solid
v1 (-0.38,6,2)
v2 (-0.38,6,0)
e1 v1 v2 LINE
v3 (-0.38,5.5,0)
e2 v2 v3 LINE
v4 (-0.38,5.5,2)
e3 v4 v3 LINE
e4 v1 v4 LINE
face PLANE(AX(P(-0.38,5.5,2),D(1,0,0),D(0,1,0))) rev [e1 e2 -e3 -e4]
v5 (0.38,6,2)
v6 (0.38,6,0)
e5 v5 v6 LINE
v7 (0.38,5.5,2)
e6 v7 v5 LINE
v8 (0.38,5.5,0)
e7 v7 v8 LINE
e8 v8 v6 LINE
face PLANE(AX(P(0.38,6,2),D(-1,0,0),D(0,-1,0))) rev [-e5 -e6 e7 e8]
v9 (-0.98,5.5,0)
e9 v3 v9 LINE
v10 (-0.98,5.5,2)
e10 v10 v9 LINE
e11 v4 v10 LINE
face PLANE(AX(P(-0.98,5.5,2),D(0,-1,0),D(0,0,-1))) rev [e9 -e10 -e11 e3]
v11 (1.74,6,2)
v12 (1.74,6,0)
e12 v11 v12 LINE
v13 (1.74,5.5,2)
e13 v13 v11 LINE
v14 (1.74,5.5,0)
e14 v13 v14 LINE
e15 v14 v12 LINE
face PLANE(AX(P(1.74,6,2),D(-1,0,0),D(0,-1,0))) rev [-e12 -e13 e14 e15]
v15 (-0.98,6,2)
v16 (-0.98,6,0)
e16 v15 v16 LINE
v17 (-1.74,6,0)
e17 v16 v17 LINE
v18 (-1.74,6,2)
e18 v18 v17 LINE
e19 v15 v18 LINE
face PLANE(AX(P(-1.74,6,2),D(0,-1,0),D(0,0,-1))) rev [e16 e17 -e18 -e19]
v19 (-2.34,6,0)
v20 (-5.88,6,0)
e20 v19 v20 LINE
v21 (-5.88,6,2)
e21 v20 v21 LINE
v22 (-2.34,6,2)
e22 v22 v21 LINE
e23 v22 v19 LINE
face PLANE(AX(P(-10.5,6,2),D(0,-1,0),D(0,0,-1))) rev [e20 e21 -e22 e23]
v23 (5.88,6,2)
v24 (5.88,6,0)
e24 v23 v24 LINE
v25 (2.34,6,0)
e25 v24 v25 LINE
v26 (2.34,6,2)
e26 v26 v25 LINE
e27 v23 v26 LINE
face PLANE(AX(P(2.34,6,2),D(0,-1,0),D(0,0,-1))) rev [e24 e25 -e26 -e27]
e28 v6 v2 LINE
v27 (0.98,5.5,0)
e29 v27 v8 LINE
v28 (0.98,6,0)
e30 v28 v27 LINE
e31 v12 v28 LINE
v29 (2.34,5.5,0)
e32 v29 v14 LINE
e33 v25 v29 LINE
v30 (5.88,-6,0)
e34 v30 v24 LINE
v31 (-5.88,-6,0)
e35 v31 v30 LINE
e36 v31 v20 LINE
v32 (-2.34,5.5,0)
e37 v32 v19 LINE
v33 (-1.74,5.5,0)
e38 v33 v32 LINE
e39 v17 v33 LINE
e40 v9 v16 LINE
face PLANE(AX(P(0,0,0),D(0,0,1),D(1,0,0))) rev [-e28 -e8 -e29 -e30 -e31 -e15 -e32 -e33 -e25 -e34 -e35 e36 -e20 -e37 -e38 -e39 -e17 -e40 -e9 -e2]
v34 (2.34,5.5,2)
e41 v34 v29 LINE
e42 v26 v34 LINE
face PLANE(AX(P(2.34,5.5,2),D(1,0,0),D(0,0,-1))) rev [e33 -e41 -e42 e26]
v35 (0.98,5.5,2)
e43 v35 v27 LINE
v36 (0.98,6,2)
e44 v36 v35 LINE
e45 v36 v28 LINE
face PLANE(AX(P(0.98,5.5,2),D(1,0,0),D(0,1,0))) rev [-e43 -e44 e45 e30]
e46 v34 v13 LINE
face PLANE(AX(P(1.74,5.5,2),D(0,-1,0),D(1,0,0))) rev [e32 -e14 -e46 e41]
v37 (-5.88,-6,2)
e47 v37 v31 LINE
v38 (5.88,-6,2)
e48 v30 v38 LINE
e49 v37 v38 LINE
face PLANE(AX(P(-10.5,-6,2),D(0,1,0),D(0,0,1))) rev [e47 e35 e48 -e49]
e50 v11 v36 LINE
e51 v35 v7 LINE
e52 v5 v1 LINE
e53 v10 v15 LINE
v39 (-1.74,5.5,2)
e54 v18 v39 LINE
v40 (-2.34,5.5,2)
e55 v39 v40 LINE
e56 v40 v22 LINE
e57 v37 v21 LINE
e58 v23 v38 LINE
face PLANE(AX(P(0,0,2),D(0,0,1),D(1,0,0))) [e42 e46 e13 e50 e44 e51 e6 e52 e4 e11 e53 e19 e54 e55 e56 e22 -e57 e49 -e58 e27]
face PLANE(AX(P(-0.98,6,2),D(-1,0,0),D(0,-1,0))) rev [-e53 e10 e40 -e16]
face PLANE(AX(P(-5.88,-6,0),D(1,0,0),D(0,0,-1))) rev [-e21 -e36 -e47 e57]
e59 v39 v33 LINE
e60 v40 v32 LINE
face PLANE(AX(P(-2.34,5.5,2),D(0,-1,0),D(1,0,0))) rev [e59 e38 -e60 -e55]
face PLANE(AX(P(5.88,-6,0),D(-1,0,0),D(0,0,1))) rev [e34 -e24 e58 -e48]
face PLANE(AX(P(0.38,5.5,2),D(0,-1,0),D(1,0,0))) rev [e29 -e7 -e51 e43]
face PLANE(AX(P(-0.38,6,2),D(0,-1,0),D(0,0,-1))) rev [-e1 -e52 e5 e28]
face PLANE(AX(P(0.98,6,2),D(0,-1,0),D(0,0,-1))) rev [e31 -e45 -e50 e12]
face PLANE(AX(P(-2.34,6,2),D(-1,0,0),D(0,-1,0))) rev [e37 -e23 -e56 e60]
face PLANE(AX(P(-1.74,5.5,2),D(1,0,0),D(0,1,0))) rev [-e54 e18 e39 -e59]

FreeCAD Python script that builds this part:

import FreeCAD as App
import Part
import Sketcher
from FreeCAD import Vector


def add_polygon(sketch, points):
    """Adds a closed chain of lines whose ends are joined by coincident constraints."""
    first, n = sketch.GeometryCount, len(points)
    for a, b in zip(points, points[1:] + points[:1]):
        sketch.addGeometry(Part.LineSegment(App.Vector(*a, 0), App.Vector(*b, 0)), False)
    for i in range(n):
        sketch.addConstraint(Sketcher.Constraint("Coincident", first + i, 2, first + (i + 1) % n, 1))

doc = App.newDocument("Part")
body = doc.addObject("PartDesign::Body", "Body")

sketch1 = doc.addObject("Sketcher::SketchObject", "Sketch")
body.addObject(sketch1)
sketch1.AttachmentSupport = (doc.XY_Plane, [""])
sketch1.MapMode = "FlatFace"
add_polygon(sketch1, [(-10.5, -6), (10.5, -6), (10.5, 6), (2.34, 6), (2.34, 5.5), (1.74, 5.5), (1.74, 6), (0.98, 6), (0.98, 5.5), (0.38, 5.5), (0.38, 6), (-0.38, 6), (-0.38, 5.5), (-0.98, 5.5), (-0.98, 6), (-1.74, 6), (-1.74, 5.5), (-2.34, 5.5), (-2.34, 6), (-10.5, 6)])
sketch1.addGeometry(Part.Circle(Vector(-8.5, -2.5, 0), Vector(0, 0, 1), 1.5), False)
sketch1.addGeometry(Part.Circle(Vector(8.5, -2.5, 0), Vector(0, 0, 1), 1.5), False)
sketch1.addConstraint([
    Sketcher.Constraint("Horizontal", 0),
    Sketcher.Constraint("Vertical", 1),
    Sketcher.Constraint("Horizontal", 2),
    Sketcher.Constraint("Vertical", 3),
    Sketcher.Constraint("Horizontal", 4),
    Sketcher.Constraint("Vertical", 5),
    Sketcher.Constraint("Horizontal", 6),
    Sketcher.Constraint("Vertical", 7),
    Sketcher.Constraint("Horizontal", 8),
    Sketcher.Constraint("Vertical", 9),
    Sketcher.Constraint("Horizontal", 10),
    Sketcher.Constraint("Vertical", 11),
    Sketcher.Constraint("Horizontal", 12),
    Sketcher.Constraint("Vertical", 13),
    Sketcher.Constraint("Horizontal", 14),
    Sketcher.Constraint("Vertical", 15),
    Sketcher.Constraint("Horizontal", 16),
    Sketcher.Constraint("Vertical", 17),
    Sketcher.Constraint("Horizontal", 18),
    Sketcher.Constraint("Vertical", 19),
    Sketcher.Constraint("Equal", 20, 21),
    Sketcher.Constraint("Symmetric", 0, 2, 18, 2, -1, 1),
    Sketcher.Constraint("Symmetric", 20, 3, 21, 3, -2),
    Sketcher.Constraint("Symmetric", 8, 2, 11, 2, -2),
    Sketcher.Constraint("Symmetric", 6, 2, 13, 2, -2),
    Sketcher.Constraint("Symmetric", 4, 2, 15, 2, -2),
    Sketcher.Constraint("Symmetric", 2, 2, 17, 2, -2),
    Sketcher.Constraint("Horizontal", 2, 2, 5, 2),
    Sketcher.Constraint("Horizontal", 4, 2, 7, 2),
    Sketcher.Constraint("Horizontal", 6, 2, 9, 2),
    Sketcher.Constraint("Equal", 4, 8),
    Sketcher.Constraint("Equal", 6, 10),
    Sketcher.Constraint("Diameter", 20, 3.0),
    Sketcher.Constraint("DistanceX", 0, 1, 0, 2, 21.0),
    Sketcher.Constraint("DistanceY", 1, 1, 1, 2, 12.0),
    Sketcher.Constraint("DistanceX", 4, 2, 4, 1, 0.6),
    Sketcher.Constraint("DistanceY", 3, 2, 3, 1, 0.5),
    Sketcher.Constraint("DistanceX", 20, 3, 21, 3, 17.0),
    Sketcher.Constraint("DistanceY", 21, 3, 3, 2, 8.0),
    Sketcher.Constraint("DistanceX", 2, 2, 2, 1, 8.16),
])
pad1 = doc.addObject("PartDesign::Pad", "Pad")
body.addObject(pad1)
pad1.Profile = sketch1
pad1.Length = 2

sketch2 = doc.addObject("Sketcher::SketchObject", "Sketch001")
body.addObject(sketch2)
sketch2.AttachmentSupport = (doc.XZ_Plane, [""])
sketch2.MapMode = "FlatFace"
sketch2.AttachmentOffset = App.Placement(Vector(0, 0, -6), App.Rotation())
add_polygon(sketch2, [(5.88, 0), (5.88, 2.672478), (10.5, 2.672478), (10.5, 0)])
add_polygon(sketch2, [(-10.5, 0), (-10.5, 3.06337), (-5.88, 3.06337), (-5.88, 0)])
sketch2.addConstraint([
    Sketcher.Constraint("Vertical", 0),
    Sketcher.Constraint("Horizontal", 1),
    Sketcher.Constraint("Vertical", 2),
    Sketcher.Constraint("Horizontal", 3),
    Sketcher.Constraint("Vertical", 4),
    Sketcher.Constraint("Horizontal", 5),
    Sketcher.Constraint("Vertical", 6),
    Sketcher.Constraint("Horizontal", 7),
    Sketcher.Constraint("Symmetric", 3, 2, 6, 2, -1, 1),
    Sketcher.Constraint("Symmetric", 2, 2, 7, 2, -2),
    Sketcher.Constraint("DistanceX", 4, 2, 1, 2, 21.0),
    Sketcher.Constraint("DistanceX", 1, 1, 1, 2, 4.62),
    Sketcher.Constraint("DistanceY", 0, 1, 0, 2, 2.672478),
    Sketcher.Constraint("DistanceY", 4, 1, 4, 2, 3.06337),
])
pocket1 = doc.addObject("PartDesign::Pocket", "Pocket")
body.addObject(pocket1)
pocket1.Profile = sketch2
pocket1.Type = "ThroughAll"
pocket1.Midplane = True

doc.recompute()
